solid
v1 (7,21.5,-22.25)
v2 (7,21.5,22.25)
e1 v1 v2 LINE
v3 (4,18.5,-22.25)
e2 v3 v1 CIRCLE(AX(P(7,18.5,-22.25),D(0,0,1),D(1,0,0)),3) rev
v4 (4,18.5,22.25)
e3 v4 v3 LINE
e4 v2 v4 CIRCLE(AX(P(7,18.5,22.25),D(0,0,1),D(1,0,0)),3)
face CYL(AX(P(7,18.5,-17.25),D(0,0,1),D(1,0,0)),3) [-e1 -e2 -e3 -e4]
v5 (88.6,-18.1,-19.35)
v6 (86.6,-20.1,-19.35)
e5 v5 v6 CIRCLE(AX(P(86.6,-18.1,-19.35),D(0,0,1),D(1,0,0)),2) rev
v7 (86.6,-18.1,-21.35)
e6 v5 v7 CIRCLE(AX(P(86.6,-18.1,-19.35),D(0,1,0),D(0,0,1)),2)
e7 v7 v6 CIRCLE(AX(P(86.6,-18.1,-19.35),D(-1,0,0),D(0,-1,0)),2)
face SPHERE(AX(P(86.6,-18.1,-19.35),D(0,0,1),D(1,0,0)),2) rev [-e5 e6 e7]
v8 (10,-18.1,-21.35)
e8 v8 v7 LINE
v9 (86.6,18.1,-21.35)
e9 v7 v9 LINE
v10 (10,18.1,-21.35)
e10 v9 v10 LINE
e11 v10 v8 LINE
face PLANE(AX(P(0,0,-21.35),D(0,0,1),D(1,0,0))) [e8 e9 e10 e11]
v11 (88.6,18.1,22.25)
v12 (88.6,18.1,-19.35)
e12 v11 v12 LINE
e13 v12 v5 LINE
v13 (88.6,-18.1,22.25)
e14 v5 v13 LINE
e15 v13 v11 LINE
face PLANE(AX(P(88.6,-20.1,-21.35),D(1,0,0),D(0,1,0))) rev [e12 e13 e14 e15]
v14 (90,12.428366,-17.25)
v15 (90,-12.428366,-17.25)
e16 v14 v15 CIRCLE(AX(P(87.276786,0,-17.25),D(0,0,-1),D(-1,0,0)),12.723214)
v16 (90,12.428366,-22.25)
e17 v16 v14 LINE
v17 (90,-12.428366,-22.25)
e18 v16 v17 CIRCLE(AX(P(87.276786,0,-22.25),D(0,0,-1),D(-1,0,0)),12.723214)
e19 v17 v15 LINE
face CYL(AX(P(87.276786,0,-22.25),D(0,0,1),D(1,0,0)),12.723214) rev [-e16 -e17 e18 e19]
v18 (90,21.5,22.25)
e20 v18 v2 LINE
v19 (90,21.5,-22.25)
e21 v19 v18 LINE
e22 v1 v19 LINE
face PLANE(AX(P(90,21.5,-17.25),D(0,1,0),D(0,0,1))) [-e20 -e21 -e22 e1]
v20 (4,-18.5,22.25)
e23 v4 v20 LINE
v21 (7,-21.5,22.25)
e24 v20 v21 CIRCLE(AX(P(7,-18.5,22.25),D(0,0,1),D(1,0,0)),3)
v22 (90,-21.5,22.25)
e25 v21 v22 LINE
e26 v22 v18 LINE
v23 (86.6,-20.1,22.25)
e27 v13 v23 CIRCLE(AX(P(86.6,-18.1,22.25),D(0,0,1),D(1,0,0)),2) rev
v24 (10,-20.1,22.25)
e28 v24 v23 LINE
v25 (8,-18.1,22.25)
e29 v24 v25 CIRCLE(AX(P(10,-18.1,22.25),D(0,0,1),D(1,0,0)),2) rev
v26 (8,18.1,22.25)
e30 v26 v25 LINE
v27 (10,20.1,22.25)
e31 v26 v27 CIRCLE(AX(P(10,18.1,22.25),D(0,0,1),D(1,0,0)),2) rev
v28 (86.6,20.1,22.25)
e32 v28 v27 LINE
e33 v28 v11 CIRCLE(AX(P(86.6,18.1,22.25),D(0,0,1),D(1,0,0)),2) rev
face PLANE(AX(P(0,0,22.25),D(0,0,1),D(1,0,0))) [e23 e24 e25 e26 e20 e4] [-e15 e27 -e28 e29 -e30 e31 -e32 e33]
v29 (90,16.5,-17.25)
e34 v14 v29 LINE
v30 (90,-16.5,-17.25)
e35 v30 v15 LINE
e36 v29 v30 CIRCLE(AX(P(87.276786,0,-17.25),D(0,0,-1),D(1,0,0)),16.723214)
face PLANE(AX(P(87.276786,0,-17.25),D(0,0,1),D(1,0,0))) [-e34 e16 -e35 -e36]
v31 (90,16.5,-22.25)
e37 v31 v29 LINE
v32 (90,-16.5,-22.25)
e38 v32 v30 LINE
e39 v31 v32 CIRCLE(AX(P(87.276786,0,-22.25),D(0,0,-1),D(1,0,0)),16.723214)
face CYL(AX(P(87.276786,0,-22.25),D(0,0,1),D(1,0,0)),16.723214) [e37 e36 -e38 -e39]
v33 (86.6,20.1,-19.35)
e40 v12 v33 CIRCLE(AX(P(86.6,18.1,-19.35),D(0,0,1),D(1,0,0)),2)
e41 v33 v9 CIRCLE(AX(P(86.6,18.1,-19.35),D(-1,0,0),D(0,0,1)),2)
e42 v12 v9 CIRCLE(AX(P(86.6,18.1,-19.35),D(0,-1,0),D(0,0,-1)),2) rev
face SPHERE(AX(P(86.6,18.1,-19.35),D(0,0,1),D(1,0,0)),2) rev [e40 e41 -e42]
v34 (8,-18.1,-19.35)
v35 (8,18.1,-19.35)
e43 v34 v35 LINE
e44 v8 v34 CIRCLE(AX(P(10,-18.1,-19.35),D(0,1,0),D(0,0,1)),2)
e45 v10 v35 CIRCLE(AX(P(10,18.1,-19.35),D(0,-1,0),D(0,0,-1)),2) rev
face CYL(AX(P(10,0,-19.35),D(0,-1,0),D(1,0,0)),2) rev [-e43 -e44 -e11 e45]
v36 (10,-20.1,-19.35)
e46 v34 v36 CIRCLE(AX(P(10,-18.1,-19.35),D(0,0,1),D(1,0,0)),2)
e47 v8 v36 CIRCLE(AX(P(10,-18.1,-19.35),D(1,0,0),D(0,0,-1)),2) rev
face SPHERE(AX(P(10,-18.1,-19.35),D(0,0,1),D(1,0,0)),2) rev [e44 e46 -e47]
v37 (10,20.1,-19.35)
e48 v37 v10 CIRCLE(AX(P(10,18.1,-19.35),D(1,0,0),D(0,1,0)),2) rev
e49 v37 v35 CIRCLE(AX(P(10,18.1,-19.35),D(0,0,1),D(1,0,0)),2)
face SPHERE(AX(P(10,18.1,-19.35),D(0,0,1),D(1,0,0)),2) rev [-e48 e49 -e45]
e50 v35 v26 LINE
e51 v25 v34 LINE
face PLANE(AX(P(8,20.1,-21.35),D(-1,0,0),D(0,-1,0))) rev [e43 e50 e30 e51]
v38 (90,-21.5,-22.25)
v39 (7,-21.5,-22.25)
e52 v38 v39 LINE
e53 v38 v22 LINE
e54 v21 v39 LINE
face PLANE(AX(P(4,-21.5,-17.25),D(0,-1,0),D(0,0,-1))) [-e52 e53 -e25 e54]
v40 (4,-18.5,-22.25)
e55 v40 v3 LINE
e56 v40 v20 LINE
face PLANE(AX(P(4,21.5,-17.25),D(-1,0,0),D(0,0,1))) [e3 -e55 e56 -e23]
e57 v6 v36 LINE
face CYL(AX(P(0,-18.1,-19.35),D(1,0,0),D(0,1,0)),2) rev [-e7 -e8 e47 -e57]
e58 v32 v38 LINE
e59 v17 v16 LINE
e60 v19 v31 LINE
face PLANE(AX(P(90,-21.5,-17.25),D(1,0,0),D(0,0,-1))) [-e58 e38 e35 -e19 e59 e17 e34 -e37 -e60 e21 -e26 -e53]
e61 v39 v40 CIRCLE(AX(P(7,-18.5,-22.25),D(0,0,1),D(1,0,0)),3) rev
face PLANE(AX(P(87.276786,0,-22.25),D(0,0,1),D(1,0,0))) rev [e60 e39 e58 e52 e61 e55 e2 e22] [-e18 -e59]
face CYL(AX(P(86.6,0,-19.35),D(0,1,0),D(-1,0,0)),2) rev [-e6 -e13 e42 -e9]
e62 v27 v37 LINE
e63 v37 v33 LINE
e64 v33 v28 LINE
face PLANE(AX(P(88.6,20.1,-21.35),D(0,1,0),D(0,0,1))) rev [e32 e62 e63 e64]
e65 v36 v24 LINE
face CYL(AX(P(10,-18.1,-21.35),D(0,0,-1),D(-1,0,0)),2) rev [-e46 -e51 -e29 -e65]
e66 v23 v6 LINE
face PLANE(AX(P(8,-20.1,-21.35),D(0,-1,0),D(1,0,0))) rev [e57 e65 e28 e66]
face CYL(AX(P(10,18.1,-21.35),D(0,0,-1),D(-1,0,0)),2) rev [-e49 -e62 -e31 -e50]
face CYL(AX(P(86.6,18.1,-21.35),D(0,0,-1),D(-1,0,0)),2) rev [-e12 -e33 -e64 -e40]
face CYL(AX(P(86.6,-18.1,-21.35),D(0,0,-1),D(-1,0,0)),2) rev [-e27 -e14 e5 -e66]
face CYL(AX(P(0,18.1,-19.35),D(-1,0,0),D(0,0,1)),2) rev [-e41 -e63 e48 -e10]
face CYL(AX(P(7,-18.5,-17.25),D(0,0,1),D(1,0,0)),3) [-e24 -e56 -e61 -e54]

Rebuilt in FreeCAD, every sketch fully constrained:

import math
import FreeCAD as App
import Part
import Sketcher


def edges_at(feature, points):
    """Names of the edges that pass closest to the given points."""
    edges = feature.Shape.Edges
    near = lambda p: min(range(len(edges)), key=lambda i: edges[i].distToShape(Part.Vertex(*p))[0])
    return sorted({f"Edge{near(p) + 1}" for p in points})


def add_polygon(sketch, points):
    """Adds a closed chain of lines whose ends are joined by coincident constraints."""
    first, n = sketch.GeometryCount, len(points)
    for a, b in zip(points, points[1:] + points[:1]):
        sketch.addGeometry(Part.LineSegment(App.Vector(*a, 0), App.Vector(*b, 0)), False)
    for i in range(n):
        sketch.addConstraint(Sketcher.Constraint("Coincident", first + i, 2, first + (i + 1) % n, 1))

doc = App.newDocument("Part")
body = doc.addObject("PartDesign::Body", "Body")

sketch1 = body.newObject("Sketcher::SketchObject", "Sketch")
sketch1.AttachmentSupport = (doc.getObject("XY_Plane"), [""])
sketch1.MapMode = "FlatFace"
sketch1.AttachmentOffset = App.Placement(App.Vector(0, 0, 22.25), App.Rotation())
add_polygon(sketch1, [(4, 21.5), (4, -21.5), (90, -21.5), (90, 21.5)])
sketch1.addConstraint([
    Sketcher.Constraint("Vertical", 0),
    Sketcher.Constraint("Horizontal", 1),
    Sketcher.Constraint("Vertical", 2),
    Sketcher.Constraint("Horizontal", 3),
    Sketcher.Constraint("DistanceX", 1, 1, 1, 2, 86.0),
    Sketcher.Constraint("DistanceY", 0, 2, 0, 1, 43.0),
    Sketcher.Constraint("DistanceX", -1, 1, 0, 2, 4.0),
    Sketcher.Constraint("DistanceY", 0, 2, -1, 1, 21.5),
])
pad1 = body.newObject("PartDesign::Pad", "Pad")
pad1.Profile = sketch1
pad1.Length = 39.5
pad1.Reversed = True

sketch2 = body.newObject("Sketcher::SketchObject", "Sketch001")
sketch2.AttachmentSupport = (doc.getObject("XY_Plane"), [""])
sketch2.MapMode = "FlatFace"
sketch2.AttachmentOffset = App.Placement(App.Vector(0, 0, -17.25), App.Rotation())
sketch2.addGeometry([
    Part.LineSegment(App.Vector(90, -16.5, 0), App.Vector(90, -21.5, 0)),
    Part.LineSegment(App.Vector(90, -21.5, 0), App.Vector(4, -21.5, 0)),
    Part.LineSegment(App.Vector(4, -21.5, 0), App.Vector(4, 21.5, 0)),
    Part.LineSegment(App.Vector(4, 21.5, 0), App.Vector(90, 21.5, 0)),
    Part.LineSegment(App.Vector(90, 21.5, 0), App.Vector(90, 16.5, 0)),
    Part.ArcOfCircle(Part.Circle(App.Vector(87.276786, 0, 0), App.Vector(0, 0, 1), 16.723214), math.radians(-80.6282), math.radians(80.6282)),
    Part.ArcOfCircle(Part.Circle(App.Vector(87.276786, 0, 0), App.Vector(0, 0, 1), 12.723214), math.radians(-77.641076), math.radians(77.641076)),
    Part.LineSegment(App.Vector(90, 12.428366, 0), App.Vector(90, -12.428366, 0)),
], False)
sketch2.addConstraint([
    Sketcher.Constraint("Coincident", 0, 2, 1, 1),
    Sketcher.Constraint("Coincident", 1, 2, 2, 1),
    Sketcher.Constraint("Coincident", 2, 2, 3, 1),
    Sketcher.Constraint("Coincident", 3, 2, 4, 1),
    Sketcher.Constraint("Coincident", 4, 2, 5, 2),
    Sketcher.Constraint("Coincident", 5, 1, 0, 1),
    Sketcher.Constraint("Coincident", 6, 1, 7, 2),
    Sketcher.Constraint("Coincident", 7, 1, 6, 2),
    Sketcher.Constraint("Vertical", 0),
    Sketcher.Constraint("Horizontal", 1),
    Sketcher.Constraint("Vertical", 2),
    Sketcher.Constraint("Horizontal", 3),
    Sketcher.Constraint("Vertical", 4),
    Sketcher.Constraint("Vertical", 7),
    Sketcher.Constraint("Coincident", 6, 3, 5, 3),
    Sketcher.Constraint("Symmetric", 0, 2, 3, 2, -1),
    Sketcher.Constraint("PointOnObject", 5, 3, -1),
    Sketcher.Constraint("Vertical", 5, 1, 6, 1),
    Sketcher.Constraint("DistanceX", 1, 2, 1, 1, 86.0),
    Sketcher.Constraint("DistanceY", 0, 2, 0, 1, 5.0),
    Sketcher.Constraint("DistanceY", 2, 1, 2, 2, 43.0),
    Sketcher.Constraint("DistanceX", -1, 1, 0, 2, 90.0),
    Sketcher.Constraint("Radius", 5, 16.723214),
    Sketcher.Constraint("Radius", 6, 12.723214),
])
pad2 = body.newObject("PartDesign::Pad", "Pad001")
pad2.Profile = sketch2
pad2.Length = 5
pad2.Reversed = True

sketch3 = body.newObject("Sketcher::SketchObject", "Sketch002")
sketch3.AttachmentSupport = (doc.getObject("XY_Plane"), [""])
sketch3.MapMode = "FlatFace"
sketch3.AttachmentOffset = App.Placement(App.Vector(0, 0, 22.25), App.Rotation())
add_polygon(sketch3, [(8, 20.1), (8, -20.1), (88.6, -20.1), (88.6, 20.1)])
sketch3.addConstraint([
    Sketcher.Constraint("Vertical", 0),
    Sketcher.Constraint("Horizontal", 1),
    Sketcher.Constraint("Vertical", 2),
    Sketcher.Constraint("Horizontal", 3),
    Sketcher.Constraint("DistanceX", 1, 1, 1, 2, 80.6),
    Sketcher.Constraint("DistanceY", 0, 2, 0, 1, 40.2),
    Sketcher.Constraint("DistanceX", -1, 1, 0, 2, 8.0),
    Sketcher.Constraint("DistanceY", 0, 2, -1, 1, 20.1),
])
pocket1 = body.newObject("PartDesign::Pocket", "Pocket")
pocket1.Profile = sketch3
pocket1.Length = 43.6

sketch4 = body.newObject("Sketcher::SketchObject", "Sketch003")
sketch4.AttachmentSupport = (doc.getObject("YZ_Plane"), [""])
sketch4.MapMode = "FlatFace"
sketch4.AttachmentOffset = App.Placement(App.Vector(0, 0, 4), App.Rotation())
sketch4.addGeometry(Part.Circle(App.Vector(0, 0, 0), App.Vector(0, 0, 1), 4.15), False)
sketch4.addConstraint([
    Sketcher.Constraint("Coincident", 0, 3, -1, 1),
    Sketcher.Constraint("Diameter", 0, 8.3),
])
doc.recompute()
hole = body.newObject("PartDesign::Hole", "Hole")
hole.Profile = sketch4
hole.ThreadType = "None"
hole.Diameter = 8.3
hole.DepthType = "Dimension"
hole.Depth = 3.2
hole.DrillPoint = "Flat"
hole.Reversed = True
doc.recompute()

fillet = body.newObject("PartDesign::Fillet", "Fillet")
fillet.Base = (hole, edges_at(hole, [(4, -21.5, 0), (4, 21.5, 0)]))
fillet.Radius = 3

sketch5 = body.newObject("Sketcher::SketchObject", "Sketch004")
sketch5.AttachmentSupport = (doc.getObject("YZ_Plane"), [""])
sketch5.MapMode = "FlatFace"
sketch5.AttachmentOffset = App.Placement(App.Vector(0, 0, 8), App.Rotation())
sketch5.addGeometry(Part.Circle(App.Vector(0, 0, 0), App.Vector(0, 0, 1), 4.15), False)
sketch5.addConstraint([
    Sketcher.Constraint("Coincident", 0, 3, -1, 1),
    Sketcher.Constraint("Diameter", 0, 8.3),
])
pad3 = body.newObject("PartDesign::Pad", "Pad002")
pad3.Profile = sketch5
pad3.Length = 4
pad3.Reversed = True
doc.recompute()

fillet2 = body.newObject("PartDesign::Fillet", "Fillet001")
fillet2.Base = (pad3, edges_at(pad3, [
    (48.3, -20.1, -21.35),
    (88.6, -20.1, 0.45),
    (8, 0, -21.35),
    (8, -20.1, 0.45),
    (48.3, 20.1, -21.35),
    (8, 20.1, 0.45),
    (88.6, 0, -21.35),
    (88.6, 20.1, 0.45),
]))
fillet2.Radius = 2

doc.recompute()
